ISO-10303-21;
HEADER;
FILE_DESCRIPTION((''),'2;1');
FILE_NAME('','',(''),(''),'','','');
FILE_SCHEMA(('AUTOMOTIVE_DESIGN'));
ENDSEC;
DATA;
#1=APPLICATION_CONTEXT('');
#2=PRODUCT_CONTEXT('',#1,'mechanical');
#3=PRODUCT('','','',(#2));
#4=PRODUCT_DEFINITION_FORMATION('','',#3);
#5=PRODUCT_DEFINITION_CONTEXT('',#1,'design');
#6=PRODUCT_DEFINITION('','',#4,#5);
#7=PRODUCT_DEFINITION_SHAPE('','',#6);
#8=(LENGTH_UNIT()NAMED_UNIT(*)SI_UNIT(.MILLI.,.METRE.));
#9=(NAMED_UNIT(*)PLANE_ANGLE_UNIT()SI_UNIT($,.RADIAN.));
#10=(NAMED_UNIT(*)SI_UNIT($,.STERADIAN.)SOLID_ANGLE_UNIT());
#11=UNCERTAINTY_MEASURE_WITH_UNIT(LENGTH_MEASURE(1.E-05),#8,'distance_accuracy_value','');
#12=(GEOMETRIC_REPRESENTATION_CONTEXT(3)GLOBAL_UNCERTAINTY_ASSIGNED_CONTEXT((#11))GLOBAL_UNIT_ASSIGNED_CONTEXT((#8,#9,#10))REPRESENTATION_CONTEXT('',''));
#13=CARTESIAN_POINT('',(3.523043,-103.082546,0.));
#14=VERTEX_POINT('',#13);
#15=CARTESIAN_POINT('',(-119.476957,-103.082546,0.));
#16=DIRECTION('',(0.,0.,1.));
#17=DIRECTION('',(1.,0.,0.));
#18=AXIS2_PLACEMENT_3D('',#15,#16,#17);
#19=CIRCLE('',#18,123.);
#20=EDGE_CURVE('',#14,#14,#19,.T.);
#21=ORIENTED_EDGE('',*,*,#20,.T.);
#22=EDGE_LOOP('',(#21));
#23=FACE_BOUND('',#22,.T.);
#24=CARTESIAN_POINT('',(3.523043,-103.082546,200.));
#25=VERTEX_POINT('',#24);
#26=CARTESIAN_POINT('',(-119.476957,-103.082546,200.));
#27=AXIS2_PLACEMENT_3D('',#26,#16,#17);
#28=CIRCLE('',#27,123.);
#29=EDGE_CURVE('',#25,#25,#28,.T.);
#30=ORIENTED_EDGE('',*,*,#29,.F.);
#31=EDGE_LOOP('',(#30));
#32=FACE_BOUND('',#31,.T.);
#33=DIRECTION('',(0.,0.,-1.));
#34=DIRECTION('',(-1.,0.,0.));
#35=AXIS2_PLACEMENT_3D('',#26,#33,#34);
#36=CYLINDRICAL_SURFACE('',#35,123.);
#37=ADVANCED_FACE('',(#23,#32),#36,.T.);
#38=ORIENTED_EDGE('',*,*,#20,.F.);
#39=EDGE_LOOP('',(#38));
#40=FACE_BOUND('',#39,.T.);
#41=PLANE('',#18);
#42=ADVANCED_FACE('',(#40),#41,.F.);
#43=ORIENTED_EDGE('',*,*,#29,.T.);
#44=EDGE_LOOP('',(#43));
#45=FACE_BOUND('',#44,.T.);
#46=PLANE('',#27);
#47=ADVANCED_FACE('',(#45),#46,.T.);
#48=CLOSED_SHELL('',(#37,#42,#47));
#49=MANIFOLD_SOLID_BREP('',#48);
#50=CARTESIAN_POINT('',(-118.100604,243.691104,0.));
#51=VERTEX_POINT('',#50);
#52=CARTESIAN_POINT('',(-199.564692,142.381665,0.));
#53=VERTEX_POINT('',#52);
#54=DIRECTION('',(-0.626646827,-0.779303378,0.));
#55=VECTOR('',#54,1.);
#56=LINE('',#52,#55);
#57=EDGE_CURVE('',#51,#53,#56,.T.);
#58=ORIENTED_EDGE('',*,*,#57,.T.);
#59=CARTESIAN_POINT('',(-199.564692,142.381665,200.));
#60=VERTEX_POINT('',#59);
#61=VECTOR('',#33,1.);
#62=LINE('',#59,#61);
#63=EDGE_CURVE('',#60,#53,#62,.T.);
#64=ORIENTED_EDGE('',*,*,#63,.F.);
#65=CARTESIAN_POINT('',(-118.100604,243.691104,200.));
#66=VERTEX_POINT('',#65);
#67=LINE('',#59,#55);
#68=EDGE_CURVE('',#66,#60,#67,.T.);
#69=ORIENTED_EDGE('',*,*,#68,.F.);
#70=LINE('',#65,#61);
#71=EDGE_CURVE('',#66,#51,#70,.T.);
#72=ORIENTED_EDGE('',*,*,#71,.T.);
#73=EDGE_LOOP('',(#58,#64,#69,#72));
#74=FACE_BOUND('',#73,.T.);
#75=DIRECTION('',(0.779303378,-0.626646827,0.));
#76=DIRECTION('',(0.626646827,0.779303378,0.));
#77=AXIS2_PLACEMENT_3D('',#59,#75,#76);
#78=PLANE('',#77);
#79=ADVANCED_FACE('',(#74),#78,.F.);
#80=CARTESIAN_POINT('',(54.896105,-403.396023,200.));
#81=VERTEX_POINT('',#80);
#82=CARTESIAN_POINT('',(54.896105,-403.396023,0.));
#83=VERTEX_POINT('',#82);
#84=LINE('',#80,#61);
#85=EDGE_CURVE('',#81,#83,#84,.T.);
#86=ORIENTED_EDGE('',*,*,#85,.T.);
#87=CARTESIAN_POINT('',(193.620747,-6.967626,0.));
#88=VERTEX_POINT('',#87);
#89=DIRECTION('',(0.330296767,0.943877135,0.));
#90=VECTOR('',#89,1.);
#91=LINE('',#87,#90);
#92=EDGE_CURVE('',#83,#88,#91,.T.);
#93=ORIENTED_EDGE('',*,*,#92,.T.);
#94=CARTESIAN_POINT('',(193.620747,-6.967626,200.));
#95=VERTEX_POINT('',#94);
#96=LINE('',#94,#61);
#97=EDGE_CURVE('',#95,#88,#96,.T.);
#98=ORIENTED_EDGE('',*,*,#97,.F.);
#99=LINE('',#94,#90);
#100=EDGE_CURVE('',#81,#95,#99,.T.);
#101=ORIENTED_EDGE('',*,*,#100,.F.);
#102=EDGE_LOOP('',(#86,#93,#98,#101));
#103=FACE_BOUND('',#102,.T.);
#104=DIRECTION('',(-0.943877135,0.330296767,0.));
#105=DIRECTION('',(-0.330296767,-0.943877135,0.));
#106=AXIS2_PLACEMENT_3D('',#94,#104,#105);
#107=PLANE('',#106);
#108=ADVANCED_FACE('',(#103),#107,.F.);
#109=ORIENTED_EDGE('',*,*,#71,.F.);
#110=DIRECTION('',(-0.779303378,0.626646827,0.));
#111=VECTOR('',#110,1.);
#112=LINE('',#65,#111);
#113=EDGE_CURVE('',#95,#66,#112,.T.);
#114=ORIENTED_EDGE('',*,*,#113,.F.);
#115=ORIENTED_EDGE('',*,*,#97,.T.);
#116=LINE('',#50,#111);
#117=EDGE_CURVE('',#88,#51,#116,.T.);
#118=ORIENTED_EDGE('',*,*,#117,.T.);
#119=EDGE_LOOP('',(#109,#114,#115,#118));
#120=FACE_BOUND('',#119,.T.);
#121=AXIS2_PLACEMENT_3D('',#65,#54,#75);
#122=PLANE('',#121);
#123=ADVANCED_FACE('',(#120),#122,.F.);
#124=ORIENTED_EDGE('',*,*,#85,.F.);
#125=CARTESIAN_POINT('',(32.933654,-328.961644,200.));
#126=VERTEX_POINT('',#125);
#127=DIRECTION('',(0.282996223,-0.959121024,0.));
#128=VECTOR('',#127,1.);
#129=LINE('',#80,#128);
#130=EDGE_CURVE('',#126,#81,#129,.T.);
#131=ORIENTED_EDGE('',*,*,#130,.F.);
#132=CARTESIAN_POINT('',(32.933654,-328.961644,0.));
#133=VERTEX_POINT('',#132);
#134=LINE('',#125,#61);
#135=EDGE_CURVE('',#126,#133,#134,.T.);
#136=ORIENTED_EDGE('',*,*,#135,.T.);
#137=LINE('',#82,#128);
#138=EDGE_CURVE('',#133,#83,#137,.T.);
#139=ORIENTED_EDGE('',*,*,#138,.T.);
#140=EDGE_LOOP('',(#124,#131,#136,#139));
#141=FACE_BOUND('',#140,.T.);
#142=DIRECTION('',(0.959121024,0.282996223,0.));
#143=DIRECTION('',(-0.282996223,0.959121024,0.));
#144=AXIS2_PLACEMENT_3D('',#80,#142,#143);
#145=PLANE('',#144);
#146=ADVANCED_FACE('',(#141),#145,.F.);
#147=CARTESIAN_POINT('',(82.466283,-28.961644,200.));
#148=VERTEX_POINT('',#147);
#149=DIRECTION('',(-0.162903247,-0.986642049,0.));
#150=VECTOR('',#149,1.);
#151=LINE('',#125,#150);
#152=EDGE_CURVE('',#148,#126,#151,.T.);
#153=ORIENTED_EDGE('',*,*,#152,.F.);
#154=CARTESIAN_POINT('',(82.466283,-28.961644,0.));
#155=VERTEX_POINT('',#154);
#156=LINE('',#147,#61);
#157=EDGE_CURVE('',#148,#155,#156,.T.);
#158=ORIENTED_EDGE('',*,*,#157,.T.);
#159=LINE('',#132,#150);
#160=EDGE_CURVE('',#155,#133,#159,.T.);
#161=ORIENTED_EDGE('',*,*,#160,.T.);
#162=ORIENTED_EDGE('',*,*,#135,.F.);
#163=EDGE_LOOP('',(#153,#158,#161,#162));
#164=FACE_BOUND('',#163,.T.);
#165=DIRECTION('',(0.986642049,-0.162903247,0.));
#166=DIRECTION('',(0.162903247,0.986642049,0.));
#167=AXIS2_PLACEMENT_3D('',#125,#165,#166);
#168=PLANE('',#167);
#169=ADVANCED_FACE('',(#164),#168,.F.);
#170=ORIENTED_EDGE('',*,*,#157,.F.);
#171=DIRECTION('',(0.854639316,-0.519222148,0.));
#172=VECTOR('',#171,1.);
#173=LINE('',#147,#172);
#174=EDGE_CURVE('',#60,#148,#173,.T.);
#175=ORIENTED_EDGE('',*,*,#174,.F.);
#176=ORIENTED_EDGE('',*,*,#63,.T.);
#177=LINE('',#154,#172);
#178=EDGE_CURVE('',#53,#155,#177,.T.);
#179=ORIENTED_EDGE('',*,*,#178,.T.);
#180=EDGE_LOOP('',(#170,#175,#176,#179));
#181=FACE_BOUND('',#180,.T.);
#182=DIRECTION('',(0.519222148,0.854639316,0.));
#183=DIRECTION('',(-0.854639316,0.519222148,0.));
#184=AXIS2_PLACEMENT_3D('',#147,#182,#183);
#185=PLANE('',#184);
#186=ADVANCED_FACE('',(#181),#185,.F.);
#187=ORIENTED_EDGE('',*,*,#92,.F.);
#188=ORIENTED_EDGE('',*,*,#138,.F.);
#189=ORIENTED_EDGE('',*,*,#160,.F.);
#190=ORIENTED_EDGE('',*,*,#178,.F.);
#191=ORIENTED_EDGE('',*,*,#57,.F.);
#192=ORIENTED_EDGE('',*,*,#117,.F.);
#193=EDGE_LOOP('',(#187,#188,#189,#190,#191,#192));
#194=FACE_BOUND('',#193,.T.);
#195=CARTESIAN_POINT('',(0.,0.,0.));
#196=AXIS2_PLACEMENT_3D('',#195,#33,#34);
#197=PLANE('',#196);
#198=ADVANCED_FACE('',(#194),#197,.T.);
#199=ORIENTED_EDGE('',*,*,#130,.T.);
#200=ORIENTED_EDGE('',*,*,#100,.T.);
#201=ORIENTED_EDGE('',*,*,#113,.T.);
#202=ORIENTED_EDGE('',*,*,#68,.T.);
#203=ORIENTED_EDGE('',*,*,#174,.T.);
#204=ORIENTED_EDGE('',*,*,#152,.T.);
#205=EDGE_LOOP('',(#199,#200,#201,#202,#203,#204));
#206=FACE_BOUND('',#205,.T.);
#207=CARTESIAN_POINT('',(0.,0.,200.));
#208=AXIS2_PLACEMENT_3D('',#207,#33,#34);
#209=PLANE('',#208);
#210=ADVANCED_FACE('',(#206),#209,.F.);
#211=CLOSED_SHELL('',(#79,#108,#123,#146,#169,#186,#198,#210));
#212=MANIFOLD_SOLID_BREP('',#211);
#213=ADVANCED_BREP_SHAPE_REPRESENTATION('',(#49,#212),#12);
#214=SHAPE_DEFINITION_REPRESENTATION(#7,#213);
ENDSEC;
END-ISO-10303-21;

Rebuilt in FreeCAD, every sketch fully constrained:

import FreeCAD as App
import Part
import Sketcher
from FreeCAD import Vector
Q = App.Units.Quantity

doc = App.newDocument("Part")
body = doc.addObject("PartDesign::Body", "Body")

# Sketch on XY plane
sketch1 = body.newObject("Sketcher::SketchObject", "Sketch")
sketch1.AttachmentSupport = (doc.getObject("XY_Plane"), [""])
sketch1.MapMode = "FlatFace"
sketch1.addGeometry(Part.Circle(Vector(-119, -103, 0), Vector(0, 0, 1), 123), False)
sketch1.addConstraint([
    Sketcher.Constraint("Diameter", 0, Q("246 mm")),
    Sketcher.Constraint("DistanceX", 0, 3, -1, 1, Q("119.476957 mm")),
    Sketcher.Constraint("DistanceY", 0, 3, -1, 1, Q("103.082546 mm")),
])
pad1 = body.newObject("PartDesign::Pad", "Pad")
pad1.Profile = sketch1
pad1.Length = 200
body2 = doc.addObject("PartDesign::Body", "Body001")

# Sketch on XY plane
sketch2 = body2.newObject("Sketcher::SketchObject", "Sketch001")
sketch2.AttachmentSupport = (doc.getObject("XY_Plane001"), [""])
sketch2.MapMode = "FlatFace"
sketch2.addGeometry([
    Part.LineSegment(Vector(194, -7, 0), Vector(-118, 244, 0)),  # 0
    Part.LineSegment(Vector(-118, 244, 0), Vector(-200, 142, 0)),  # 1
    Part.LineSegment(Vector(-200, 142, 0), Vector(82, -29, 0)),  # 2
    Part.LineSegment(Vector(82, -29, 0), Vector(33, -329, 0)),  # 3
    Part.LineSegment(Vector(33, -329, 0), Vector(55, -403, 0)),  # 4
    Part.LineSegment(Vector(55, -403, 0), Vector(194, -7, 0)),  # 5
], False)
sketch2.addConstraint([
    Sketcher.Constraint("Coincident", 0, 2, 1, 1),
    Sketcher.Constraint("Coincident", 1, 2, 2, 1),
    Sketcher.Constraint("Coincident", 2, 2, 3, 1),
    Sketcher.Constraint("Coincident", 3, 2, 4, 1),
    Sketcher.Constraint("Coincident", 4, 2, 5, 1),
    Sketcher.Constraint("Coincident", 5, 2, 0, 1),
    Sketcher.Constraint("Perpendicular", 0, 1),
    Sketcher.Constraint("Distance", 0, Q("400 mm")),
    Sketcher.Constraint("Distance", 1, Q("130 mm")),
    Sketcher.Constraint("Distance", 2, Q("330 mm")),
    Sketcher.Constraint("Distance", 5, Q("420 mm")),
    Sketcher.Constraint("DistanceY", 3, 2, 2, 2, Q("300 mm")),
    Sketcher.Constraint("Distance", 3, Q("304.061641 mm")),
    Sketcher.Constraint("Distance", 4, Q("77.606869 mm")),
    Sketcher.Constraint("DistanceX", 1, 2, -1, 1, Q("199.564692 mm")),
    Sketcher.Constraint("DistanceY", 1, 2, 0, 2, Q("101.309439 mm")),
    Sketcher.Constraint("DistanceY", 2, 2, 1, 2, Q("171.343309 mm")),
    Sketcher.Constraint("DistanceY", -1, 1, 0, 2, Q("243.691104 mm")),
])
pad2 = body2.newObject("PartDesign::Pad", "Pad001")
pad2.Profile = sketch2
pad2.Length = 200

doc.recompute()
